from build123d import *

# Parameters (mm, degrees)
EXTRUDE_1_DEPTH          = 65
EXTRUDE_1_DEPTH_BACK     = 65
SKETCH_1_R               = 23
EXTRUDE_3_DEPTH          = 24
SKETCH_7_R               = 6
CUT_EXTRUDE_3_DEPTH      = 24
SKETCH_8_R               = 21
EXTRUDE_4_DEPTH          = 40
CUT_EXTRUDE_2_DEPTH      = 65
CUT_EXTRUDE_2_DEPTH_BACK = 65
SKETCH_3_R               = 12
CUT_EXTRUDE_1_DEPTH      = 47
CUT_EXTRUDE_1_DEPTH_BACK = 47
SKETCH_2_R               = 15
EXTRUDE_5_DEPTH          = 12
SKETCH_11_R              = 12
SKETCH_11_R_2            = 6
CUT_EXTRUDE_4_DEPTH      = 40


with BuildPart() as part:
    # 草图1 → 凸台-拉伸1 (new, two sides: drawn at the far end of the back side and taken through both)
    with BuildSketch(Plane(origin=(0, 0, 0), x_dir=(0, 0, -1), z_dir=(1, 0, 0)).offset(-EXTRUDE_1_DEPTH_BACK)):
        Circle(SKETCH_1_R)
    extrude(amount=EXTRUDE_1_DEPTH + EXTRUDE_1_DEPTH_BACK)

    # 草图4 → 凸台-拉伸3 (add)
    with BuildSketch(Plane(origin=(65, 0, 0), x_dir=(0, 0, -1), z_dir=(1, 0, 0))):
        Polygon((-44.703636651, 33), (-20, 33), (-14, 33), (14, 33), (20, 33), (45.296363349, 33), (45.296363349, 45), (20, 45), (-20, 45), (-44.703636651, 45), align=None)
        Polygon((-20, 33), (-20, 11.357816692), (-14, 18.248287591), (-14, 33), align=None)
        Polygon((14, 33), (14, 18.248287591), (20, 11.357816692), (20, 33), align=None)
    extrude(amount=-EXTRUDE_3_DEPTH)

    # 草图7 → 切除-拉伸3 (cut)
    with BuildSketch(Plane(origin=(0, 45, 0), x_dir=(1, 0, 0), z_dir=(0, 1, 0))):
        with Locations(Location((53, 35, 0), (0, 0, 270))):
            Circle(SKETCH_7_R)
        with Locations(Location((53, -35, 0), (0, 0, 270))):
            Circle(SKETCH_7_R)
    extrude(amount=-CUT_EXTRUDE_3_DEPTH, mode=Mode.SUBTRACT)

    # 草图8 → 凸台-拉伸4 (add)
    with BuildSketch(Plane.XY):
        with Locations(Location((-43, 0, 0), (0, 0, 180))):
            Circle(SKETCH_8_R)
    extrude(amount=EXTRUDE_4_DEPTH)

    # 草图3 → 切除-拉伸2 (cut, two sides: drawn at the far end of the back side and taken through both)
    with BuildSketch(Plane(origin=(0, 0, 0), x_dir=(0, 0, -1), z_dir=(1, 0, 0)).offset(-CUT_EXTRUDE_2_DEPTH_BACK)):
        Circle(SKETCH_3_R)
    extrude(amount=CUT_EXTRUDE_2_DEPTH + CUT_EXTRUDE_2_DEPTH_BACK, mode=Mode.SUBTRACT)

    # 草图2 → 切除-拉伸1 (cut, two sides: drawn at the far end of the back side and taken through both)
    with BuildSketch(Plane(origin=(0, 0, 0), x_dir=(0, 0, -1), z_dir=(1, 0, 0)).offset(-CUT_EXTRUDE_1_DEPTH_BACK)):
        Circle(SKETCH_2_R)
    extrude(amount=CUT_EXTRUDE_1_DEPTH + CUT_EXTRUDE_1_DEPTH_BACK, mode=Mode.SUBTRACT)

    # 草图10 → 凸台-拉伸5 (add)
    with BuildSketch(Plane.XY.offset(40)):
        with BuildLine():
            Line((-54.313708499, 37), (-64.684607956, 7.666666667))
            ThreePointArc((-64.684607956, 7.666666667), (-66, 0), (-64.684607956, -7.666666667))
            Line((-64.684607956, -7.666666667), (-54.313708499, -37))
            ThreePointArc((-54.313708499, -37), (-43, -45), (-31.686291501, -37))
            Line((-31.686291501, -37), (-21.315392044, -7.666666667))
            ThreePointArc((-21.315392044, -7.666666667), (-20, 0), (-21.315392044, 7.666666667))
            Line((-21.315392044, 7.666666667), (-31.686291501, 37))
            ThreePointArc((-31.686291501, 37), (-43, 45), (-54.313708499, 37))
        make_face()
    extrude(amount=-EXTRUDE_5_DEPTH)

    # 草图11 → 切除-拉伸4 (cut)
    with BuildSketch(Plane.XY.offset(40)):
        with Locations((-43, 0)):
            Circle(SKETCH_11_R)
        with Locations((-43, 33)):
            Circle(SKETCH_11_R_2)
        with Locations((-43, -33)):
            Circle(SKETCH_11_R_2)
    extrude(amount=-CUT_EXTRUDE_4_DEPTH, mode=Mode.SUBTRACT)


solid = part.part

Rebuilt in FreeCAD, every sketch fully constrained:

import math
import FreeCAD as App
import Part
import Sketcher
Q = App.Units.Quantity


def add_polygon(sketch, points):
    """Adds a closed chain of lines whose ends are joined by coincident constraints."""
    first, n = sketch.GeometryCount, len(points)
    for a, b in zip(points, points[1:] + points[:1]):
        sketch.addGeometry(Part.LineSegment(App.Vector(*a, 0), App.Vector(*b, 0)), False)
    for i in range(n):
        sketch.addConstraint(Sketcher.Constraint("Coincident", first + i, 2, first + (i + 1) % n, 1))

doc = App.newDocument("Part")
params = doc.addObject("Spreadsheet::Sheet", "Params")
for row, (alias, value) in enumerate([
    ("sketch1_diameter", "46 mm"),
    ("pad1_length", "65 mm"),
    ("pad1_length2", "65 mm"),
    ("sketch2_width", "12 mm"),
    ("sketch2_height", "28 mm"),
    ("sketch2_height2", "90 mm"),
    ("pad2_length", "24 mm"),
    ("sketch3_diameter", "12 mm"),
    ("pocket1_length", "24 mm"),
    ("sketch4_diameter", "42 mm"),
    ("pad3_length", "40 mm"),
    ("sketch5_diameter", "24 mm"),
    ("sketch6_diameter", "30 mm"),
    ("pocket3_length", "47 mm"),
    ("pocket3_length2", "47 mm"),
    ("sketch7_radius", "23 mm"),
    ("sketch7_radius2", "12 mm"),
    ("pad4_length", "12 mm"),
    ("sketch8_diameter", "24 mm"),
    ("sketch8_diameter2", "12 mm"),
    ("pocket4_length", "40 mm"),
], start=1):
    params.set(f"A{row}", alias)
    params.set(f"B{row}", "=" + value)
    params.setAlias(f"B{row}", alias)

body = doc.addObject("PartDesign::Body", "Body")

# Sketch on YZ plane
sketch1 = body.newObject("Sketcher::SketchObject", "Sketch")
sketch1.AttachmentSupport = (doc.getObject("YZ_Plane"), [""])
sketch1.MapMode = "FlatFace"
sketch1.addGeometry(Part.Circle(App.Vector(0, 0, 0), App.Vector(0, 0, 1), 23), False)
sketch1.addConstraint([
    Sketcher.Constraint("Coincident", 0, 3, -1, 1),
    Sketcher.Constraint("Diameter", 0, Q("46 mm")),
])
sketch1.setExpression("Constraints[1]", "Params.sketch1_diameter")
pad1 = body.newObject("PartDesign::Pad", "Pad")
pad1.Profile = sketch1
pad1.Type = "TwoLengths"
pad1.setExpression("Length", "Params.pad1_length")
pad1.setExpression("Length2", "Params.pad1_length2")

# Sketch on YZ plane
sketch2 = body.newObject("Sketcher::SketchObject", "Sketch001")
sketch2.AttachmentSupport = (doc.getObject("YZ_Plane"), [""])
sketch2.MapMode = "FlatFace"
sketch2.AttachmentOffset = App.Placement(App.Vector(0, 0, 65), App.Rotation())
add_polygon(sketch2, [(33, 44.703637), (33, 20), (11.357817, 20), (18.248288, 14), (33, 14), (33, -14), (18.248288, -14), (11.357817, -20), (33, -20), (33, -45.296363), (45, -45.296363), (45, 44.703637)])  # lines 0-11
sketch2.addConstraint([
    Sketcher.Constraint("Vertical", 0),
    Sketcher.Constraint("Horizontal", 1),
    Sketcher.Constraint("Horizontal", 3),
    Sketcher.Constraint("Vertical", 4),
    Sketcher.Constraint("Horizontal", 5),
    Sketcher.Constraint("Horizontal", 7),
    Sketcher.Constraint("Vertical", 8),
    Sketcher.Constraint("Horizontal", 9),
    Sketcher.Constraint("Vertical", 10),
    Sketcher.Constraint("Horizontal", 11),
    Sketcher.Constraint("Symmetric", 2, 2, 5, 2, -1),
    Sketcher.Constraint("Symmetric", 1, 2, 6, 2, -1),
    Sketcher.Constraint("Vertical", 0, 2, 3, 2),
    Sketcher.Constraint("Vertical", 4, 2, 7, 2),
    Sketcher.Constraint("DistanceX", 9, 1, 9, 2, Q("12 mm")),
    Sketcher.Constraint("DistanceY", 4, 2, 4, 1, Q("28 mm")),
    Sketcher.Constraint("DistanceY", 10, 1, 10, 2, Q("90 mm")),
    Sketcher.Constraint("DistanceX", -1, 1, 0, 2, Q("33 mm")),
    Sketcher.Constraint("DistanceY", -1, 1, 0, 2, Q("20 mm")),
    Sketcher.Constraint("Distance", 2, Q("9.136662 mm")),
    Sketcher.Constraint("DistanceX", 1, 2, 1, 1, Q("21.642183 mm")),
    Sketcher.Constraint("DistanceY", 0, 2, 0, 1, Q("24.703637 mm")),
])
sketch2.setExpression("Constraints[26]", "Params.sketch2_width")
sketch2.setExpression("Constraints[27]", "Params.sketch2_height")
sketch2.setExpression("Constraints[28]", "Params.sketch2_height2")
pad2 = body.newObject("PartDesign::Pad", "Pad001")
pad2.Profile = sketch2
pad2.setExpression("Length", "Params.pad2_length")
pad2.Reversed = True

# Sketch on XZ plane
sketch3 = body.newObject("Sketcher::SketchObject", "Sketch002")
sketch3.AttachmentSupport = (doc.getObject("XZ_Plane"), [""])
sketch3.MapMode = "FlatFace"
sketch3.AttachmentOffset = App.Placement(App.Vector(0, 0, -45), App.Rotation())
sketch3.addGeometry([
    Part.Circle(App.Vector(53, -35, 0), App.Vector(0, 0, 1), 6),
    Part.Circle(App.Vector(53, 35, 0), App.Vector(0, 0, 1), 6),
], False)
sketch3.addConstraint([
    Sketcher.Constraint("Equal", 0, 1),
    Sketcher.Constraint("Symmetric", 0, 3, 1, 3, -1),
    Sketcher.Constraint("Diameter", 0, Q("12 mm")),
    Sketcher.Constraint("DistanceX", -1, 1, 0, 3, Q("53 mm")),
    Sketcher.Constraint("DistanceY", 0, 3, -1, 1, Q("35 mm")),
])
sketch3.setExpression("Constraints[2]", "Params.sketch3_diameter")
pocket1 = body.newObject("PartDesign::Pocket", "Pocket")
pocket1.Profile = sketch3
pocket1.setExpression("Length", "Params.pocket1_length")
pocket1.Reversed = True

# Sketch on XY plane
sketch4 = body.newObject("Sketcher::SketchObject", "Sketch003")
sketch4.AttachmentSupport = (doc.getObject("XY_Plane"), [""])
sketch4.MapMode = "FlatFace"
sketch4.addGeometry(Part.Circle(App.Vector(-43, 0, 0), App.Vector(0, 0, 1), 21), False)
sketch4.addConstraint([
    Sketcher.Constraint("PointOnObject", 0, 3, -1),
    Sketcher.Constraint("Diameter", 0, Q("42 mm")),
    Sketcher.Constraint("DistanceX", 0, 3, -1, 1, Q("43 mm")),
])
sketch4.setExpression("Constraints[1]", "Params.sketch4_diameter")
pad3 = body.newObject("PartDesign::Pad", "Pad002")
pad3.Profile = sketch4
pad3.setExpression("Length", "Params.pad3_length")

# Sketch on YZ plane
sketch5 = body.newObject("Sketcher::SketchObject", "Sketch004")
sketch5.AttachmentSupport = (doc.getObject("YZ_Plane"), [""])
sketch5.MapMode = "FlatFace"
sketch5.addGeometry(Part.Circle(App.Vector(0, 0, 0), App.Vector(0, 0, 1), 12), False)
sketch5.addConstraint([
    Sketcher.Constraint("Coincident", 0, 3, -1, 1),
    Sketcher.Constraint("Diameter", 0, Q("24 mm")),
])
sketch5.setExpression("Constraints[1]", "Params.sketch5_diameter")
pocket2 = body.newObject("PartDesign::Pocket", "Pocket001")
pocket2.Profile = sketch5
pocket2.Type = "ThroughAll"
pocket2.Midplane = True

# Sketch on YZ plane
sketch6 = body.newObject("Sketcher::SketchObject", "Sketch005")
sketch6.AttachmentSupport = (doc.getObject("YZ_Plane"), [""])
sketch6.MapMode = "FlatFace"
sketch6.addGeometry(Part.Circle(App.Vector(0, 0, 0), App.Vector(0, 0, 1), 15), False)
sketch6.addConstraint([
    Sketcher.Constraint("Coincident", 0, 3, -1, 1),
    Sketcher.Constraint("Diameter", 0, Q("30 mm")),
])
sketch6.setExpression("Constraints[1]", "Params.sketch6_diameter")
pocket3 = body.newObject("PartDesign::Pocket", "Pocket002")
pocket3.Profile = sketch6
pocket3.Type = "TwoLengths"
pocket3.setExpression("Length", "Params.pocket3_length")
pocket3.setExpression("Length2", "Params.pocket3_length2")
pocket3.Reversed = True

# Sketch on XY plane
sketch7 = body.newObject("Sketcher::SketchObject", "Sketch006")
sketch7.AttachmentSupport = (doc.getObject("XY_Plane"), [""])
sketch7.MapMode = "FlatFace"
sketch7.AttachmentOffset = App.Placement(App.Vector(0, 0, 40), App.Rotation())
sketch7.addGeometry([
    Part.LineSegment(App.Vector(-54.313708, 37, 0), App.Vector(-64.684608, 7.666667, 0)),  # 0
    Part.ArcOfCircle(Part.Circle(App.Vector(-43, 0, 0), App.Vector(0, 0, 1), 23), math.radians(160.528779), math.radians(199.471221)),  # 1
    Part.LineSegment(App.Vector(-64.684608, -7.666667, 0), App.Vector(-54.313708, -37, 0)),  # 2
    Part.ArcOfCircle(Part.Circle(App.Vector(-43, -33, 0), App.Vector(0, 0, 1), 12), math.radians(-160.528779), math.radians(-19.471221)),  # 3
    Part.LineSegment(App.Vector(-31.686292, -37, 0), App.Vector(-21.315392, -7.666667, 0)),  # 4
    Part.ArcOfCircle(Part.Circle(App.Vector(-43, 0, 0), App.Vector(0, 0, 1), 23), math.radians(-19.471221), math.radians(19.471221)),  # 5
    Part.LineSegment(App.Vector(-21.315392, 7.666667, 0), App.Vector(-31.686292, 37, 0)),  # 6
    Part.ArcOfCircle(Part.Circle(App.Vector(-43, 33, 0), App.Vector(0, 0, 1), 12), math.radians(19.471221), math.radians(160.528779)),  # 7
], False)
sketch7.addConstraint([
    Sketcher.Constraint("Tangent", 0, 2, 1, 1),
    Sketcher.Constraint("Tangent", 1, 2, 2, 1),
    Sketcher.Constraint("Tangent", 2, 2, 3, 1),
    Sketcher.Constraint("Tangent", 3, 2, 4, 1),
    Sketcher.Constraint("Tangent", 4, 2, 5, 1),
    Sketcher.Constraint("Tangent", 5, 2, 6, 1),
    Sketcher.Constraint("Tangent", 6, 2, 7, 1),
    Sketcher.Constraint("Tangent", 7, 2, 0, 1),
    Sketcher.Constraint("Coincident", 5, 3, 1, 3),
    Sketcher.Constraint("Equal", 1, 5),
    Sketcher.Constraint("Equal", 3, 7),
    Sketcher.Constraint("Symmetric", 3, 3, 7, 3, -1),
    Sketcher.Constraint("PointOnObject", 1, 3, -1),
    Sketcher.Constraint("Parallel", 0, 4),
    Sketcher.Constraint("Radius", 1, Q("23 mm")),
    Sketcher.Constraint("Radius", 3, Q("12 mm")),
    Sketcher.Constraint("DistanceX", 1, 3, -1, 1, Q("43 mm")),
    Sketcher.Constraint("DistanceY", 3, 3, -1, 1, Q("33 mm")),
])
sketch7.setExpression("Constraints[14]", "Params.sketch7_radius")
sketch7.setExpression("Constraints[15]", "Params.sketch7_radius2")
pad4 = body.newObject("PartDesign::Pad", "Pad003")
pad4.Profile = sketch7
pad4.setExpression("Length", "Params.pad4_length")
pad4.Reversed = True

# Sketch on XY plane
sketch8 = body.newObject("Sketcher::SketchObject", "Sketch007")
sketch8.AttachmentSupport = (doc.getObject("XY_Plane"), [""])
sketch8.MapMode = "FlatFace"
sketch8.AttachmentOffset = App.Placement(App.Vector(0, 0, 40), App.Rotation())
sketch8.addGeometry([
    Part.Circle(App.Vector(-43, 0, 0), App.Vector(0, 0, 1), 12),
    Part.Circle(App.Vector(-43, 33, 0), App.Vector(0, 0, 1), 6),
    Part.Circle(App.Vector(-43, -33, 0), App.Vector(0, 0, 1), 6),
], False)
sketch8.addConstraint([
    Sketcher.Constraint("Equal", 1, 2),
    Sketcher.Constraint("Symmetric", 1, 3, 2, 3, -1),
    Sketcher.Constraint("PointOnObject", 0, 3, -1),
    Sketcher.Constraint("Vertical", 0, 3, 1, 3),
    Sketcher.Constraint("Diameter", 0, Q("24 mm")),
    Sketcher.Constraint("Diameter", 1, Q("12 mm")),
    Sketcher.Constraint("DistanceX", 0, 3, -1, 1, Q("43 mm")),
    Sketcher.Constraint("DistanceY", -1, 1, 1, 3, Q("33 mm")),
])
sketch8.setExpression("Constraints[4]", "Params.sketch8_diameter")
sketch8.setExpression("Constraints[5]", "Params.sketch8_diameter2")
pocket4 = body.newObject("PartDesign::Pocket", "Pocket003")
pocket4.Profile = sketch8
pocket4.setExpression("Length", "Params.pocket4_length")

doc.recompute()
